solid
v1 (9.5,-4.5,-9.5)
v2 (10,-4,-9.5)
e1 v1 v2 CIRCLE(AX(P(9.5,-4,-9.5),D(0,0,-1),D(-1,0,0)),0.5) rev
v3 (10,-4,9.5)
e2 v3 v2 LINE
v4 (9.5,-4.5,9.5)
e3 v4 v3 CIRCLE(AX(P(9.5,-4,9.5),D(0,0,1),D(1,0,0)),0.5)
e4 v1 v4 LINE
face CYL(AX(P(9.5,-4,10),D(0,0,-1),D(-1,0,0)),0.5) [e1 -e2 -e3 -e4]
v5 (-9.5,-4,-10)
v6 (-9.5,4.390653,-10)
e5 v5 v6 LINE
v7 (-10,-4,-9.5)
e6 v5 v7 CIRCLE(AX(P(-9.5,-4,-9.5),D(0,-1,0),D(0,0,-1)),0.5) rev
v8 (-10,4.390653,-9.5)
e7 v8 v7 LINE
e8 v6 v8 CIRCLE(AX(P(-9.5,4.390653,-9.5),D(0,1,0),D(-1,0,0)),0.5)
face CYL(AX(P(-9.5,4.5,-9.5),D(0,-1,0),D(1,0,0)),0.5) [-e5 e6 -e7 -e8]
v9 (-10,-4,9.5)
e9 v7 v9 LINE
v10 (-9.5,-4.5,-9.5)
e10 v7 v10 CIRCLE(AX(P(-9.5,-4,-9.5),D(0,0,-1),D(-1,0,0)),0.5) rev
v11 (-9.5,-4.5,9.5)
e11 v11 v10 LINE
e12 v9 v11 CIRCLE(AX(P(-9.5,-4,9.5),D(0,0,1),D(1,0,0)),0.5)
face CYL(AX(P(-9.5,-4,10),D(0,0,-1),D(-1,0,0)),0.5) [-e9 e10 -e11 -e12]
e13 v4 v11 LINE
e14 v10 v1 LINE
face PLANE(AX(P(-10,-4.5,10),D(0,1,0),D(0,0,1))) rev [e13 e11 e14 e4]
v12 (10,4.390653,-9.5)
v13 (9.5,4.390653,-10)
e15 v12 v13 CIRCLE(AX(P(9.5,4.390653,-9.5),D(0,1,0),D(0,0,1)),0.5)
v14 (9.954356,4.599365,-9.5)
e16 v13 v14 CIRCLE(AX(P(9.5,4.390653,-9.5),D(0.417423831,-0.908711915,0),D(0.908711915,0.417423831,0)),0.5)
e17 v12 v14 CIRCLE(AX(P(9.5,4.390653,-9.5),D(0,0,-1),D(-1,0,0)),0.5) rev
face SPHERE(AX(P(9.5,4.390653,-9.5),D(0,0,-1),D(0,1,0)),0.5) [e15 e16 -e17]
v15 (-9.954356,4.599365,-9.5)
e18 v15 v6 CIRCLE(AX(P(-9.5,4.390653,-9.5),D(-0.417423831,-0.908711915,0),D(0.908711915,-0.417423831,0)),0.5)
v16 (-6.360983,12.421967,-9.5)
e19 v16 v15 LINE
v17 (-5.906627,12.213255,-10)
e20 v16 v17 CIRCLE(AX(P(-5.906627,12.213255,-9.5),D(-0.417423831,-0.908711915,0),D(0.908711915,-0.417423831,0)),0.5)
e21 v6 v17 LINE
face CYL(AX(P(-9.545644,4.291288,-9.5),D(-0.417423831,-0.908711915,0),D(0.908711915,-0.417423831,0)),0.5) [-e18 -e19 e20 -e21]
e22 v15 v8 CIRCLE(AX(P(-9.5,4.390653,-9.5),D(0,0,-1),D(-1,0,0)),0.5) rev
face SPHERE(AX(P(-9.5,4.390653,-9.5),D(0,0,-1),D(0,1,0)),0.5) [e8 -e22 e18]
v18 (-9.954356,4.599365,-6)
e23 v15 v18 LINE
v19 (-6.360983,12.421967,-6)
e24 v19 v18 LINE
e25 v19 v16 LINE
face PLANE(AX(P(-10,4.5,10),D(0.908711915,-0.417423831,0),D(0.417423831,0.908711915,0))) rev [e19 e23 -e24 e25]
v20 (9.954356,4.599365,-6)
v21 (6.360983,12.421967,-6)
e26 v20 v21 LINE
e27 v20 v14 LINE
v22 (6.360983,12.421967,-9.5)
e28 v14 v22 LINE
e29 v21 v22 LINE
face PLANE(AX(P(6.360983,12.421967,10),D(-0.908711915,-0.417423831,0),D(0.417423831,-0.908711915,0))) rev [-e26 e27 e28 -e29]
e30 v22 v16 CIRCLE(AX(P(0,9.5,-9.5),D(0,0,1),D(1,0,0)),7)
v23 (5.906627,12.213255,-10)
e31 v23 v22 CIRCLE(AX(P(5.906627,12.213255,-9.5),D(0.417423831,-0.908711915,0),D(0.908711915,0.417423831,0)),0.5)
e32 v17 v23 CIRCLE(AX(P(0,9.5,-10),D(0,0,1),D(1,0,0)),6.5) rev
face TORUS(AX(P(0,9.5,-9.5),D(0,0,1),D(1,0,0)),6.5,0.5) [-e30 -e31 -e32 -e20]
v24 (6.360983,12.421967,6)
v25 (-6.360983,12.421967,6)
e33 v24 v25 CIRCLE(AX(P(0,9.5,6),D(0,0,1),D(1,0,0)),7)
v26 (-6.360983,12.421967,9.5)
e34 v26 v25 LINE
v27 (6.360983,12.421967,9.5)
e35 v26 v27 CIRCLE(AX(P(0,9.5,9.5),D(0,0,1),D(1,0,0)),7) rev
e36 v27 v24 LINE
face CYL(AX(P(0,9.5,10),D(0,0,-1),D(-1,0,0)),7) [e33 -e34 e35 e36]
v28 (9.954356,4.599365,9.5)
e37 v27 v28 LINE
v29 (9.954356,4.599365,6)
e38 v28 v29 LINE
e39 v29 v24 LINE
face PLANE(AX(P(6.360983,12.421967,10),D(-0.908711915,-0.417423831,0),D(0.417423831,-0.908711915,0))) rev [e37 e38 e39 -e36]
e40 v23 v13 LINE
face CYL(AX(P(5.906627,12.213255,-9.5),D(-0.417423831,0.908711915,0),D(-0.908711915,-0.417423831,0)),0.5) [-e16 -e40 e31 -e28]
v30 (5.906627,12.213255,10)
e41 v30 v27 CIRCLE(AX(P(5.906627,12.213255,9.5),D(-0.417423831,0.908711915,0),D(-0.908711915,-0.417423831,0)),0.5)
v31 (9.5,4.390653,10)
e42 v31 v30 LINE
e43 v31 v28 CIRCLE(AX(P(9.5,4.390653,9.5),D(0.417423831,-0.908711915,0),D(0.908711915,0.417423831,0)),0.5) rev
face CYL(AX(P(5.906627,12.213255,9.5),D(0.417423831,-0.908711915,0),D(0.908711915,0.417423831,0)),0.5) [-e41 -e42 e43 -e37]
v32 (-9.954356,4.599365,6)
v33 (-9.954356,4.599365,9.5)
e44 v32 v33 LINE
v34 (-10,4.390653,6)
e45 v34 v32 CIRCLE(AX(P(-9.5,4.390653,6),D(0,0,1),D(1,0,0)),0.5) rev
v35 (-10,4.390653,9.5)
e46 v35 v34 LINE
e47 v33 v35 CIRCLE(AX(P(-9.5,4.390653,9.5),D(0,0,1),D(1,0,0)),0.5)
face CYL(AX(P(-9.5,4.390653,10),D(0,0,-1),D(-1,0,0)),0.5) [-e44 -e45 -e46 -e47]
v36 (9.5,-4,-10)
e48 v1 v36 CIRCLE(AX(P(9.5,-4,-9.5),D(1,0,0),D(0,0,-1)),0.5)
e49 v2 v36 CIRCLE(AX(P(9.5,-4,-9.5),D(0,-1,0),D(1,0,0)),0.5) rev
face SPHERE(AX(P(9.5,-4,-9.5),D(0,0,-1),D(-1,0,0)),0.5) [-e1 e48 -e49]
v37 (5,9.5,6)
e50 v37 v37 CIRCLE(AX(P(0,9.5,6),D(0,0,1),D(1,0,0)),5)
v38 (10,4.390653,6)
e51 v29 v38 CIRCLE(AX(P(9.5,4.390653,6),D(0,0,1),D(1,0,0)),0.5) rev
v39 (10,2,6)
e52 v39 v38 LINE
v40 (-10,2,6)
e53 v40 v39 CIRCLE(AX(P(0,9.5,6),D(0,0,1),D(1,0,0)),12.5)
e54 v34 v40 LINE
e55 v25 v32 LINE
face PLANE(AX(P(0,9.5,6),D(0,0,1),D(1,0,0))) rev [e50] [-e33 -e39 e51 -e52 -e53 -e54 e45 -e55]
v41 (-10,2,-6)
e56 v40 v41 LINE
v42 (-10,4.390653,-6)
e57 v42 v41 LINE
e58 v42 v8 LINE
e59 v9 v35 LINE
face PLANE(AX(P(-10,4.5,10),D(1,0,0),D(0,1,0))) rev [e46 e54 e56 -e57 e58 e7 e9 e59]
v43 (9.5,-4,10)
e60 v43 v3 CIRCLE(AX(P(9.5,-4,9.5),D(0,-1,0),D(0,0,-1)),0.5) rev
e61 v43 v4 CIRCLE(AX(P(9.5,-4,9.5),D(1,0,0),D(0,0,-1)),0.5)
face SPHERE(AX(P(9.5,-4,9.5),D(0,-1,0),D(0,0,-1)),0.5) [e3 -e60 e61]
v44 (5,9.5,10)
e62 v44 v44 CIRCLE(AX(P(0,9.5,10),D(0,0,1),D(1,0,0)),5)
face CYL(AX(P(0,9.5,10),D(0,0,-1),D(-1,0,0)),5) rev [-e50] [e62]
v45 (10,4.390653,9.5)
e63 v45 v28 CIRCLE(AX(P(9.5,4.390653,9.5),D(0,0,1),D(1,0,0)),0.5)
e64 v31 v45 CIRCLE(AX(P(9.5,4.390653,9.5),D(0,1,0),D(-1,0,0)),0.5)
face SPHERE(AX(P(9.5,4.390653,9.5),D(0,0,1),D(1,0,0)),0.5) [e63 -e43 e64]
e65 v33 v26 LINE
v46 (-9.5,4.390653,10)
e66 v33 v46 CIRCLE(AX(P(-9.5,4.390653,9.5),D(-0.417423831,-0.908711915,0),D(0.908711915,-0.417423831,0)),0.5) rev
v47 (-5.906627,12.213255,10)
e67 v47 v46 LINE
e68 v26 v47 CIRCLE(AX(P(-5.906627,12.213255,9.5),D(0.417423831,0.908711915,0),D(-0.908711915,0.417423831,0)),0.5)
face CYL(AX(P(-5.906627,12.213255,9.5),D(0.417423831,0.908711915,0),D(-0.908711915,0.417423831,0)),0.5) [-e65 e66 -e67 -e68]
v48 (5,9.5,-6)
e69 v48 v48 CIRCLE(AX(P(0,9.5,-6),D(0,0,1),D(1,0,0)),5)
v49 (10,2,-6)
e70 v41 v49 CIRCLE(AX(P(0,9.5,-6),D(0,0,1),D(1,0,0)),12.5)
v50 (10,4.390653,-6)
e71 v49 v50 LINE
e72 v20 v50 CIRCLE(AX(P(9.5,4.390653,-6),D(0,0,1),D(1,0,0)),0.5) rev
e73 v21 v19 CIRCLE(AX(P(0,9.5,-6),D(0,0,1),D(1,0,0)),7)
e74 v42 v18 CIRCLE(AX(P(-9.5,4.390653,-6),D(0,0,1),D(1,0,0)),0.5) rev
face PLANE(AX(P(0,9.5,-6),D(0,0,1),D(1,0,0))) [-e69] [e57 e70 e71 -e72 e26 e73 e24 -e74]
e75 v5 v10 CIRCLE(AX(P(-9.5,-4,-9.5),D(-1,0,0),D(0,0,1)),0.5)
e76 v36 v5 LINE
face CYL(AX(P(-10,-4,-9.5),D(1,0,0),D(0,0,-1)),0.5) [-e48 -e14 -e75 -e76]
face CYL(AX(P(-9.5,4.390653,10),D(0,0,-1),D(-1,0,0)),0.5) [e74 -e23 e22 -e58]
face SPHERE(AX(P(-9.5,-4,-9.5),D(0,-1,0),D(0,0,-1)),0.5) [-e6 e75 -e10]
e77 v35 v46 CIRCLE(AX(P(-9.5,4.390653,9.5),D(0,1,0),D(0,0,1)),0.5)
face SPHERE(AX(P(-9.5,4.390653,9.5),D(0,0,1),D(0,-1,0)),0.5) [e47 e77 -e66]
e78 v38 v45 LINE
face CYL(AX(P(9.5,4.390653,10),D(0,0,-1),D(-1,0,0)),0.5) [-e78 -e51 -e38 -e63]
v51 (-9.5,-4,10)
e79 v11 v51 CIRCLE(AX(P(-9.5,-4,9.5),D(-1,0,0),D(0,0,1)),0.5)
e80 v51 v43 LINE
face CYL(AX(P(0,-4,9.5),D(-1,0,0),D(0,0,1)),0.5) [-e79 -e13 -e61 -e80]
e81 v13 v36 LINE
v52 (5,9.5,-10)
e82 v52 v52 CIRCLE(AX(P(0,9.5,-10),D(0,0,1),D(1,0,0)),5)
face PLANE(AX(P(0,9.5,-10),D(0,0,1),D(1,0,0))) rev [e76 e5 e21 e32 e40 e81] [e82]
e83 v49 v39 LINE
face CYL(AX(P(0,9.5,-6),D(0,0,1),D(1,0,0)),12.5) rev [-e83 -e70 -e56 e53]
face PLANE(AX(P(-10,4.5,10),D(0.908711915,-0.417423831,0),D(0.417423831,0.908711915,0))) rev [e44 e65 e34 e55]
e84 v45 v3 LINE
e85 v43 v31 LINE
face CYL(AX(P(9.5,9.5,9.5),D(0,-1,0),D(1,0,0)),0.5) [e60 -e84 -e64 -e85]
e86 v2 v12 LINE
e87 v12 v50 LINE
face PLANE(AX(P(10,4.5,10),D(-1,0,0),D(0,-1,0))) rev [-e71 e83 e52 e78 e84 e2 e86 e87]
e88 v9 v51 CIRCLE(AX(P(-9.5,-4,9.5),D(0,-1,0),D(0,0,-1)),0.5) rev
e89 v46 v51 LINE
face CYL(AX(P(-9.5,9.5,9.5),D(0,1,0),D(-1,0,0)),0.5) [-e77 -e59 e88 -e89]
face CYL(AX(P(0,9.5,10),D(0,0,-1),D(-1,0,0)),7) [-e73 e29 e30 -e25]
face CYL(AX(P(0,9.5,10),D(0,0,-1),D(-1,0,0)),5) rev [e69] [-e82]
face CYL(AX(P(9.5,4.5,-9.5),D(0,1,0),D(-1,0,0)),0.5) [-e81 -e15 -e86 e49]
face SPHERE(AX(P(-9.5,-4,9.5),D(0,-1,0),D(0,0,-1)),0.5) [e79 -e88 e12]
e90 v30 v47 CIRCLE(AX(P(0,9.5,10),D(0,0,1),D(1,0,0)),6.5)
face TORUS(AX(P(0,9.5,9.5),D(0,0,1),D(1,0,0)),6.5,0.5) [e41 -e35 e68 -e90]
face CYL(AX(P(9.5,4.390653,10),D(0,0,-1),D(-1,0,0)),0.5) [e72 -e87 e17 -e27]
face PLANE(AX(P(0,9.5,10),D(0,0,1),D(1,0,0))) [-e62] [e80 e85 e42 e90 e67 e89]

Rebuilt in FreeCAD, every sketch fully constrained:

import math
import FreeCAD as App
import Part
import Sketcher


def edges_at(feature, points):
    """Names of the edges that pass closest to the given points."""
    edges = feature.Shape.Edges
    near = lambda p: min(range(len(edges)), key=lambda i: edges[i].distToShape(Part.Vertex(*p))[0])
    return sorted({f"Edge{near(p) + 1}" for p in points})

doc = App.newDocument("Part")
body = doc.addObject("PartDesign::Body", "Body")

# Sketch on XY plane
sketch1 = body.newObject("Sketcher::SketchObject", "Sketch")
sketch1.AttachmentSupport = (doc.getObject("XY_Plane"), [""])
sketch1.MapMode = "FlatFace"
sketch1.addGeometry(Part.LineSegment(App.Vector(10, 4, 0), App.Vector(6, 12, 0)), False)
sketch1.addGeometry(Part.ArcOfCircle(Part.Circle(App.Vector(0, 10, 0), App.Vector(0, 0, 1), 7), math.radians(25), math.radians(155)), False)
sketch1.addGeometry(Part.LineSegment(App.Vector(-6, 12, 0), App.Vector(-10, 4, 0)), False)
sketch1.addGeometry(Part.LineSegment(App.Vector(-10, 4, 0), App.Vector(-10, -4, 0)), False)
sketch1.addGeometry(Part.LineSegment(App.Vector(-10, -4, 0), App.Vector(10, -4, 0)), False)
sketch1.addGeometry(Part.LineSegment(App.Vector(10, -4, 0), App.Vector(10, 4, 0)), False)
sketch1.addGeometry(Part.Circle(App.Vector(0, 10, 0), App.Vector(0, 0, 1), 5), False)
sketch1.addConstraint(Sketcher.Constraint("Tangent", 0, 2, 1, 1))
sketch1.addConstraint(Sketcher.Constraint("Tangent", 1, 2, 2, 1))
sketch1.addConstraint(Sketcher.Constraint("Coincident", 2, 2, 3, 1))
sketch1.addConstraint(Sketcher.Constraint("Coincident", 3, 2, 4, 1))
sketch1.addConstraint(Sketcher.Constraint("Coincident", 4, 2, 5, 1))
sketch1.addConstraint(Sketcher.Constraint("Coincident", 5, 2, 0, 1))
sketch1.addConstraint(Sketcher.Constraint("Vertical", 3))
sketch1.addConstraint(Sketcher.Constraint("Horizontal", 4))
sketch1.addConstraint(Sketcher.Constraint("Vertical", 5))
sketch1.addConstraint(Sketcher.Constraint("Coincident", 6, 3, 1, 3))
sketch1.addConstraint(Sketcher.Constraint("Symmetric", 2, 2, 4, 2, -1, 1))
sketch1.addConstraint(Sketcher.Constraint("Symmetric", 0, 2, 1, 2, -2))
sketch1.addConstraint(Sketcher.Constraint("Diameter", 6, 10.0))
sketch1.addConstraint(Sketcher.Constraint("Radius", 1, 7.0))
sketch1.addConstraint(Sketcher.Constraint("DistanceX", 4, 1, 4, 2, 20.0))
sketch1.addConstraint(Sketcher.Constraint("DistanceY", 3, 2, 3, 1, 9.0))
sketch1.addConstraint(Sketcher.Constraint("DistanceY", 2, 2, 1, 3, 5.0))
pad1 = body.newObject("PartDesign::Pad", "Pad")
pad1.Profile = sketch1
pad1.Length = 20
pad1.Midplane = True
doc.recompute()

fillet = body.newObject("PartDesign::Fillet", "Fillet")
fillet.Base = (pad1, edges_at(pad1, [
    (10, -4.5, 0),
    (-10, -4.5, 0),
    (-10, 4.5, 0),
    (10, 4.5, 0),
    (0, 16.5, 10),
    (-8.18, 8.461, 10),
    (-10, 0, 10),
    (0, -4.5, 10),
    (10, 0, 10),
    (0, -4.5, -10),
    (-10, 0, -10),
    (-8.18, 8.461, -10),
    (0, 16.5, -10),
    (8.18, 8.461, -10),
    (10, 0, -10),
    (8.18, 8.461, 10),
]))
fillet.Radius = 0.5

# Sketch on XY plane
sketch2 = body.newObject("Sketcher::SketchObject", "Sketch001")
sketch2.AttachmentSupport = (doc.getObject("XY_Plane"), [""])
sketch2.MapMode = "FlatFace"
sketch2.addGeometry(Part.Circle(App.Vector(0, 10, 0), App.Vector(0, 0, 1), 12), False)
sketch2.addConstraint(Sketcher.Constraint("PointOnObject", 0, 3, -2))
sketch2.addConstraint(Sketcher.Constraint("Diameter", 0, 25.0))
sketch2.addConstraint(Sketcher.Constraint("DistanceY", -1, 1, 0, 3, 9.5))
pocket1 = body.newObject("PartDesign::Pocket", "Pocket")
pocket1.Profile = sketch2
pocket1.Length = 12
pocket1.Midplane = True

doc.recompute()
